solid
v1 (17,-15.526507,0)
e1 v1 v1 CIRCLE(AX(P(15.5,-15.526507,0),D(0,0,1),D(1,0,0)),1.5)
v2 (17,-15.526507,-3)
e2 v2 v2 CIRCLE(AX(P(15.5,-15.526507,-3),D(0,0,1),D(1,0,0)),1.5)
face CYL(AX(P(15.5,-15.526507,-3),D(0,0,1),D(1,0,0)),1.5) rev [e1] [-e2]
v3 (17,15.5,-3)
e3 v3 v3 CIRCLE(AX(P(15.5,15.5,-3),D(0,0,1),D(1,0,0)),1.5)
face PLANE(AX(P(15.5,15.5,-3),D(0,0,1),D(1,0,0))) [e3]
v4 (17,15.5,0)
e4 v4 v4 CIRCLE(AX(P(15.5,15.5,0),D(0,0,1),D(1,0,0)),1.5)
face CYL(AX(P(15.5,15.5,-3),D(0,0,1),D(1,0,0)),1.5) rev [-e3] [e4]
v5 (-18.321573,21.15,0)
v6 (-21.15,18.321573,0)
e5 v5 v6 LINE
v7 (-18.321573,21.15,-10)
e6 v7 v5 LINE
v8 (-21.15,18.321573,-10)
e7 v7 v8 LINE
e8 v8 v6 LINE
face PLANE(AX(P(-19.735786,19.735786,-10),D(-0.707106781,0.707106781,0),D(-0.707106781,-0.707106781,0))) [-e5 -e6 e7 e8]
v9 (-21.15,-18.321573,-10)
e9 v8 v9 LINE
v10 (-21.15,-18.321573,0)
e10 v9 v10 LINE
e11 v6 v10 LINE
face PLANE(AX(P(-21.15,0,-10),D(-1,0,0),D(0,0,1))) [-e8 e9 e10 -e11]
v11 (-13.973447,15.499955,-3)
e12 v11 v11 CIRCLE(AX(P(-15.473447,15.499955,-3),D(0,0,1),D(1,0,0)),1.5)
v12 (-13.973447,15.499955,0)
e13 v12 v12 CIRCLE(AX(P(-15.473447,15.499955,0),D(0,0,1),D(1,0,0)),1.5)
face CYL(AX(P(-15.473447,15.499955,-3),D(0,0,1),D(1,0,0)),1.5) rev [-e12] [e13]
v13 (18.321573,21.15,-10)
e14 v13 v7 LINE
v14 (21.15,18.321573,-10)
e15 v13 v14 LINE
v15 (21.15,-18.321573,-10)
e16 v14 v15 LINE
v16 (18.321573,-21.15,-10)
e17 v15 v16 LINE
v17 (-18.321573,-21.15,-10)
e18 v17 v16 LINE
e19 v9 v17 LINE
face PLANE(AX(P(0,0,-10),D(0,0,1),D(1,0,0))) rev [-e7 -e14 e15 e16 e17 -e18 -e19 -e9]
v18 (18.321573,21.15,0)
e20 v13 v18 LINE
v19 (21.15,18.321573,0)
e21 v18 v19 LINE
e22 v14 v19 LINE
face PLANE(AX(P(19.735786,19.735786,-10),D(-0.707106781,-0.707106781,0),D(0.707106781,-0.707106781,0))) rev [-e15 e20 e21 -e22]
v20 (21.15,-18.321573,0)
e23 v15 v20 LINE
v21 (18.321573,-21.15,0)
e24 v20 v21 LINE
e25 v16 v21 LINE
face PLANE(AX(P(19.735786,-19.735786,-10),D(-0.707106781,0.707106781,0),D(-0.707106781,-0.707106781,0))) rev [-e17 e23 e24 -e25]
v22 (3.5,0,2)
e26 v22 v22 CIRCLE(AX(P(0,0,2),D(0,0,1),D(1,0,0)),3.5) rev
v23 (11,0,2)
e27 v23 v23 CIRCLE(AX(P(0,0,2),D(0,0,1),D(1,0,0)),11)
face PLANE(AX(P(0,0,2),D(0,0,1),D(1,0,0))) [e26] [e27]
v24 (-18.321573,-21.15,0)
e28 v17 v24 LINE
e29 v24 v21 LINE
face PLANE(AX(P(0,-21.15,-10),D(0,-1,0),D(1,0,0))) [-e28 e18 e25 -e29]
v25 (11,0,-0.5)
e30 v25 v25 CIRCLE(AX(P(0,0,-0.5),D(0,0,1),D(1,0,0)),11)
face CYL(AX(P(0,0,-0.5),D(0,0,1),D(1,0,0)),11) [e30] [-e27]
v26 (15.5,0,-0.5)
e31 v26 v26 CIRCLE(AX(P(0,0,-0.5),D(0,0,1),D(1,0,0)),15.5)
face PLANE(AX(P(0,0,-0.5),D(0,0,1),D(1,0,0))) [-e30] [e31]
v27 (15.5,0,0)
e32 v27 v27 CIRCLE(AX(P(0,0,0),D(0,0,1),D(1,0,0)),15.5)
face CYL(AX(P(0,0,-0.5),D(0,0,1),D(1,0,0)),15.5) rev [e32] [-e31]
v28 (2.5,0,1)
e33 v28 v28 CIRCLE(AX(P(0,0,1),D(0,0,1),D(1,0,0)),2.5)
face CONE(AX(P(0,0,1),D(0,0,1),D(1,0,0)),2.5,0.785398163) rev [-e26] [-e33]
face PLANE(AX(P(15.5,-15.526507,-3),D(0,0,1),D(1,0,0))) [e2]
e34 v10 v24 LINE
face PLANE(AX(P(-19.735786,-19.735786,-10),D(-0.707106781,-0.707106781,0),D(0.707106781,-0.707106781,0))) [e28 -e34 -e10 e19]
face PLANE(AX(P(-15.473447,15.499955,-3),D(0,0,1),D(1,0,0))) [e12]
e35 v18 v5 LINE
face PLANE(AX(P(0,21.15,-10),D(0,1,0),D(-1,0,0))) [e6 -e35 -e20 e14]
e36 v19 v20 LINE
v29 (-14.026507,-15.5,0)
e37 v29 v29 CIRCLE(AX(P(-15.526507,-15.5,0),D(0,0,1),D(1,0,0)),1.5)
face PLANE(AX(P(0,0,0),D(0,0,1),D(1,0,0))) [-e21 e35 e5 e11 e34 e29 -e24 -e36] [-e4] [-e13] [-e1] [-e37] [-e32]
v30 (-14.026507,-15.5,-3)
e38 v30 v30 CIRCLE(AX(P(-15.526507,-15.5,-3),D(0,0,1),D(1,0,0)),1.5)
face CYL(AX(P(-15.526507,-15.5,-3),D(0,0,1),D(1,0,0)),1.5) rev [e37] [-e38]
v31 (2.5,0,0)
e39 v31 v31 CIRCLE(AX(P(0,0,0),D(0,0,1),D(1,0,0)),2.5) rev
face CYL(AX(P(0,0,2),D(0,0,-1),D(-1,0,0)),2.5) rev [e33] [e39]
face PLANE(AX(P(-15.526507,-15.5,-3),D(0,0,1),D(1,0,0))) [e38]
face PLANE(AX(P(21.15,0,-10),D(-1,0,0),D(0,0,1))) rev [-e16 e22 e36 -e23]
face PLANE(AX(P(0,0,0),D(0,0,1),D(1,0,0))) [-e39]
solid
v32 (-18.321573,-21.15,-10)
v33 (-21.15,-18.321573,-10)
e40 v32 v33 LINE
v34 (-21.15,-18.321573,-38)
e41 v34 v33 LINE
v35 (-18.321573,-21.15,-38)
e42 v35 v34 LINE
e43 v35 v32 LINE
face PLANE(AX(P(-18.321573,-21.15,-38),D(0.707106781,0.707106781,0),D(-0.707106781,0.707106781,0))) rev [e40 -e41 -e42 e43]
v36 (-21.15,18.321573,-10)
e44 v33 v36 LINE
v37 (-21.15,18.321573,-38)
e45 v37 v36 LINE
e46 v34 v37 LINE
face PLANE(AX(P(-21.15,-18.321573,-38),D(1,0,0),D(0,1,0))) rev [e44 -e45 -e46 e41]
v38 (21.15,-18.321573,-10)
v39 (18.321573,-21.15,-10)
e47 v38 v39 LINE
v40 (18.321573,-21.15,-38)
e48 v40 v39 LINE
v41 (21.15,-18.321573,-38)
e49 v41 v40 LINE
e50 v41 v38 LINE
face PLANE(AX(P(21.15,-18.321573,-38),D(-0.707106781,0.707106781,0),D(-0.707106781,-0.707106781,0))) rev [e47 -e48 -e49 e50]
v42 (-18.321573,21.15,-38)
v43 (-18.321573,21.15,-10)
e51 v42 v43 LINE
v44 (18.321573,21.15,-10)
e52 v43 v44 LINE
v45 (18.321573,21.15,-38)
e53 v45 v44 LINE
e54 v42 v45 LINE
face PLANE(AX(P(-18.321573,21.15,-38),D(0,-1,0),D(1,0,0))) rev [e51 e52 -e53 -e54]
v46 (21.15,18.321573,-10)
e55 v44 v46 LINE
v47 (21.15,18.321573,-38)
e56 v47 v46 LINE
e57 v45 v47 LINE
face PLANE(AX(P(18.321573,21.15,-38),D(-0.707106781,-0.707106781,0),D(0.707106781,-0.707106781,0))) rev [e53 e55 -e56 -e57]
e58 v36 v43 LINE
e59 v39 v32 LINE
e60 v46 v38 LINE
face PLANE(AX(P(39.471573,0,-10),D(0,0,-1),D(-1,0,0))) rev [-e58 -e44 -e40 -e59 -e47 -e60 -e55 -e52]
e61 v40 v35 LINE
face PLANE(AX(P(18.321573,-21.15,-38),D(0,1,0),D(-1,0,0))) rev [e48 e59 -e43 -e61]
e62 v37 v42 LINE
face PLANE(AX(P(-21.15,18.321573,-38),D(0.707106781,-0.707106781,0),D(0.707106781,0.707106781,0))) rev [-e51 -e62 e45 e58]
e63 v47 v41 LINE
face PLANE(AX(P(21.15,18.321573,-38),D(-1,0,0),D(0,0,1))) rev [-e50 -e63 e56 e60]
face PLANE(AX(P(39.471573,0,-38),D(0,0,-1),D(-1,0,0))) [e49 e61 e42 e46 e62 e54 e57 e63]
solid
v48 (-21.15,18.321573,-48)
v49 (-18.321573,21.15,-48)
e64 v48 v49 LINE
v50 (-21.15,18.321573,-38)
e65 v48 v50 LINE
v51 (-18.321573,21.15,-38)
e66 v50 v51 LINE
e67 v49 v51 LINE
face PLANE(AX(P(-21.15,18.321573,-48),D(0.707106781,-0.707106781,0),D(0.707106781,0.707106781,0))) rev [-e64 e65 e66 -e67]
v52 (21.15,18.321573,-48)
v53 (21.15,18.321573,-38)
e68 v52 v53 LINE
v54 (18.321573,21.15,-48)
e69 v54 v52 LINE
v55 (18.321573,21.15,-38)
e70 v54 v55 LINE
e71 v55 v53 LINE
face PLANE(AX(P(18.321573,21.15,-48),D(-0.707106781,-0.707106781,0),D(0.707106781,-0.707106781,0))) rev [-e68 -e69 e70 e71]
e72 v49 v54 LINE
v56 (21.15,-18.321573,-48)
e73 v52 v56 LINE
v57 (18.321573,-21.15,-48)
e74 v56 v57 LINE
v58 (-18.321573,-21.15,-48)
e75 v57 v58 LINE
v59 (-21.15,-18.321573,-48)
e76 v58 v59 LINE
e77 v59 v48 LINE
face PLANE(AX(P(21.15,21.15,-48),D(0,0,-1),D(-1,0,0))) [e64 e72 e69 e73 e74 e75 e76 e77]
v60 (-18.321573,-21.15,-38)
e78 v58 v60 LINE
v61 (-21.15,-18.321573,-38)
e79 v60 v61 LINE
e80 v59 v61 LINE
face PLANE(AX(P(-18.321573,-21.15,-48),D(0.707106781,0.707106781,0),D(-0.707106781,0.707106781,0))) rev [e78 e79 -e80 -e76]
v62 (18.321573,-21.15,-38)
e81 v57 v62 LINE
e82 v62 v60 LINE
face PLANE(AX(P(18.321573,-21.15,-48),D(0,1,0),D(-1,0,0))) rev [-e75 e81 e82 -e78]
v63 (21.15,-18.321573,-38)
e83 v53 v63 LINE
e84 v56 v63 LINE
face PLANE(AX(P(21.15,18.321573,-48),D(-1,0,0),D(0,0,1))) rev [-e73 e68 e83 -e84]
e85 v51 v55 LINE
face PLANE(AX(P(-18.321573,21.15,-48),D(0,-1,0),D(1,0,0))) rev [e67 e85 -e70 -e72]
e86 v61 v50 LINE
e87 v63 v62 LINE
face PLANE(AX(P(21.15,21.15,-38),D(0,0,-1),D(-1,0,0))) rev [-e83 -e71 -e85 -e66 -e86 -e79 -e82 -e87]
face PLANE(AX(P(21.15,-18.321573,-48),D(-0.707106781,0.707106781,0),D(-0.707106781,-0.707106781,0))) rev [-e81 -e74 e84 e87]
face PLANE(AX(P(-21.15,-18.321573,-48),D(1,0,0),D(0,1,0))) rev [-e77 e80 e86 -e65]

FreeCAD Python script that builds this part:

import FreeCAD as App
import Part
import Sketcher


def edges_at(feature, points):
    """Names of the edges that pass closest to the given points."""
    edges = feature.Shape.Edges
    near = lambda p: min(range(len(edges)), key=lambda i: edges[i].distToShape(Part.Vertex(*p))[0])
    return sorted({f"Edge{near(p) + 1}" for p in points})

doc = App.newDocument("Part")
body = doc.addObject("PartDesign::Body", "Body")

# Sketch on XY plane
sketch1 = body.newObject("Sketcher::SketchObject", "Sketch")
sketch1.AttachmentSupport = (doc.getObject("XY_Plane"), [""])
sketch1.MapMode = "FlatFace"
sketch1.addGeometry([
    Part.LineSegment(App.Vector(18.321573, 21.15, 0), App.Vector(-18.321573, 21.15, 0)),  # 0
    Part.LineSegment(App.Vector(-18.321573, 21.15, 0), App.Vector(-21.15, 18.321573, 0)),  # 1
    Part.LineSegment(App.Vector(-21.15, 18.321573, 0), App.Vector(-21.15, -18.321573, 0)),  # 2
    Part.LineSegment(App.Vector(-21.15, -18.321573, 0), App.Vector(-18.321573, -21.15, 0)),  # 3
    Part.LineSegment(App.Vector(-18.321573, -21.15, 0), App.Vector(18.321573, -21.15, 0)),  # 4
    Part.LineSegment(App.Vector(18.321573, -21.15, 0), App.Vector(21.15, -18.321573, 0)),  # 5
    Part.LineSegment(App.Vector(21.15, -18.321573, 0), App.Vector(21.15, 18.321573, 0)),  # 6
    Part.LineSegment(App.Vector(21.15, 18.321573, 0), App.Vector(18.321573, 21.15, 0)),  # 7
], False)
sketch1.addConstraint([
    Sketcher.Constraint("Coincident", 0, 2, 1, 1),
    Sketcher.Constraint("Coincident", 1, 2, 2, 1),
    Sketcher.Constraint("Coincident", 2, 2, 3, 1),
    Sketcher.Constraint("Coincident", 3, 2, 4, 1),
    Sketcher.Constraint("Coincident", 4, 2, 5, 1),
    Sketcher.Constraint("Coincident", 5, 2, 6, 1),
    Sketcher.Constraint("Coincident", 6, 2, 7, 1),
    Sketcher.Constraint("Coincident", 7, 2, 0, 1),
    Sketcher.Constraint("Horizontal", 0),
    Sketcher.Constraint("Vertical", 2),
    Sketcher.Constraint("Horizontal", 4),
    Sketcher.Constraint("Vertical", 6),
    Sketcher.Constraint("Symmetric", 0, 2, 4, 2, -1, 1),
    Sketcher.Constraint("Symmetric", 1, 2, 5, 2, -1, 1),
    Sketcher.Constraint("Perpendicular", 1, 3),
    Sketcher.Constraint("Perpendicular", 5, 7),
    Sketcher.Constraint("Horizontal", 2, 2, 5, 2),
    Sketcher.Constraint("Horizontal", 1, 2, 6, 2),
    Sketcher.Constraint("Vertical", 0, 2, 3, 2),
    Sketcher.Constraint("Equal", 4, 2),
    Sketcher.Constraint("Distance", 1, 4.0),
    Sketcher.Constraint("DistanceY", 3, 2, 0, 2, 42.3),
])
pad1 = body.newObject("PartDesign::Pad", "Pad")
pad1.Profile = sketch1
pad1.Length = 10
pad1.Reversed = True

# Sketch on XY plane
sketch2 = body.newObject("Sketcher::SketchObject", "Sketch001")
sketch2.AttachmentSupport = (doc.getObject("XY_Plane"), [""])
sketch2.MapMode = "FlatFace"
sketch2.addGeometry([
    Part.Circle(App.Vector(0, 0, 0), App.Vector(0, 0, 1), 15.5),
    Part.Circle(App.Vector(0, 0, 0), App.Vector(0, 0, 1), 11),
], False)
sketch2.addConstraint([
    Sketcher.Constraint("Coincident", 0, 3, -1, 1),
    Sketcher.Constraint("Coincident", 1, 3, -1, 1),
    Sketcher.Constraint("Diameter", 0, 31.0),
    Sketcher.Constraint("Diameter", 1, 22.0),
])
pocket1 = body.newObject("PartDesign::Pocket", "Pocket")
pocket1.Profile = sketch2
pocket1.Length = 0.5

# Sketch on XY plane
sketch3 = body.newObject("Sketcher::SketchObject", "Sketch002")
sketch3.AttachmentSupport = (doc.getObject("XY_Plane"), [""])
sketch3.MapMode = "FlatFace"
sketch3.AttachmentOffset = App.Placement(App.Vector(0, 0, 2), App.Rotation())
sketch3.addGeometry([
    Part.Circle(App.Vector(0, 0, 0), App.Vector(0, 0, 1), 11),
    Part.Circle(App.Vector(0, 0, 0), App.Vector(0, 0, 1), 2.5),
], False)
sketch3.addConstraint([
    Sketcher.Constraint("Coincident", 0, 3, -1, 1),
    Sketcher.Constraint("Coincident", 1, 3, -1, 1),
    Sketcher.Constraint("Diameter", 0, 22.0),
    Sketcher.Constraint("Diameter", 1, 5.0),
])
pad2 = body.newObject("PartDesign::Pad", "Pad001")
pad2.Profile = sketch3
pad2.Length = 2
pad2.Reversed = True
doc.recompute()

chamfer = body.newObject("PartDesign::Chamfer", "Chamfer")
chamfer.Base = (pad2, edges_at(pad2, [(-2.5, 0, 2)]))
chamfer.Size = 1

# Sketch on XY plane
sketch4 = body.newObject("Sketcher::SketchObject", "Sketch003")
sketch4.AttachmentSupport = (doc.getObject("XY_Plane"), [""])
sketch4.MapMode = "FlatFace"
sketch4.addGeometry([
    Part.Circle(App.Vector(-15.473447, 15.499955, 0), App.Vector(0, 0, 1), 1.5),
    Part.Circle(App.Vector(15.5, 15.5, 0), App.Vector(0, 0, 1), 1.5),
    Part.Circle(App.Vector(15.5, -15.526507, 0), App.Vector(0, 0, 1), 1.5),
    Part.Circle(App.Vector(-15.526507, -15.5, 0), App.Vector(0, 0, 1), 1.5),
], False)
sketch4.addConstraint([
    Sketcher.Constraint("Equal", 0, 1),
    Sketcher.Constraint("Equal", 1, 2),
    Sketcher.Constraint("Equal", 2, 3),
    Sketcher.Constraint("Vertical", 1, 3, 2, 3),
    Sketcher.Constraint("Diameter", 0, 3.0),
    Sketcher.Constraint("DistanceY", 3, 3, 1, 3, 31.0),
    Sketcher.Constraint("DistanceX", -1, 1, 1, 3, 15.5),
    Sketcher.Constraint("DistanceY", -1, 1, 1, 3, 15.5),
    Sketcher.Constraint("DistanceY", 2, 3, 0, 3, 31.026462),
    Sketcher.Constraint("DistanceX", 3, 3, 0, 3, 0.05306),
    Sketcher.Constraint("DistanceX", 0, 3, -1, 1, 15.473447),
    Sketcher.Constraint("DistanceY", -1, 1, 0, 3, 15.499955),
])
pocket2 = body.newObject("PartDesign::Pocket", "Pocket001")
pocket2.Profile = sketch4
pocket2.Length = 3
body2 = doc.addObject("PartDesign::Body", "Body001")

# Sketch on XY plane
sketch5 = body2.newObject("Sketcher::SketchObject", "Sketch004")
sketch5.AttachmentSupport = (doc.getObject("XY_Plane001"), [""])
sketch5.MapMode = "FlatFace"
sketch5.AttachmentOffset = App.Placement(App.Vector(0, 0, -10), App.Rotation())
sketch5.addGeometry([
    Part.LineSegment(App.Vector(21.15, 18.321573, 0), App.Vector(21.15, -18.321573, 0)),  # 0
    Part.LineSegment(App.Vector(21.15, -18.321573, 0), App.Vector(18.321573, -21.15, 0)),  # 1
    Part.LineSegment(App.Vector(18.321573, -21.15, 0), App.Vector(-18.321573, -21.15, 0)),  # 2
    Part.LineSegment(App.Vector(-18.321573, -21.15, 0), App.Vector(-21.15, -18.321573, 0)),  # 3
    Part.LineSegment(App.Vector(-21.15, -18.321573, 0), App.Vector(-21.15, 18.321573, 0)),  # 4
    Part.LineSegment(App.Vector(-21.15, 18.321573, 0), App.Vector(-18.321573, 21.15, 0)),  # 5
    Part.LineSegment(App.Vector(-18.321573, 21.15, 0), App.Vector(18.321573, 21.15, 0)),  # 6
    Part.LineSegment(App.Vector(18.321573, 21.15, 0), App.Vector(21.15, 18.321573, 0)),  # 7
], False)
sketch5.addConstraint([
    Sketcher.Constraint("Coincident", 0, 2, 1, 1),
    Sketcher.Constraint("Coincident", 1, 2, 2, 1),
    Sketcher.Constraint("Coincident", 2, 2, 3, 1),
    Sketcher.Constraint("Coincident", 3, 2, 4, 1),
    Sketcher.Constraint("Coincident", 4, 2, 5, 1),
    Sketcher.Constraint("Coincident", 5, 2, 6, 1),
    Sketcher.Constraint("Coincident", 6, 2, 7, 1),
    Sketcher.Constraint("Coincident", 7, 2, 0, 1),
    Sketcher.Constraint("Vertical", 0),
    Sketcher.Constraint("Horizontal", 2),
    Sketcher.Constraint("Vertical", 4),
    Sketcher.Constraint("Horizontal", 6),
    Sketcher.Constraint("Symmetric", 0, 2, 4, 2, -1, 1),
    Sketcher.Constraint("Symmetric", 1, 2, 5, 2, -1, 1),
    Sketcher.Constraint("Perpendicular", 1, 3),
    Sketcher.Constraint("Perpendicular", 5, 7),
    Sketcher.Constraint("Horizontal", 0, 2, 3, 2),
    Sketcher.Constraint("Horizontal", 4, 2, 7, 2),
    Sketcher.Constraint("Vertical", 2, 2, 5, 2),
    Sketcher.Constraint("Equal", 6, 0),
    Sketcher.Constraint("Distance", 1, 4.0),
    Sketcher.Constraint("DistanceX", 3, 2, 0, 2, 42.3),
])
pad3 = body2.newObject("PartDesign::Pad", "Pad002")
pad3.Profile = sketch5
pad3.Length = 28
pad3.Reversed = True
body3 = doc.addObject("PartDesign::Body", "Body002")

# Sketch on XY plane
sketch6 = body3.newObject("Sketcher::SketchObject", "Sketch005")
sketch6.AttachmentSupport = (doc.getObject("XY_Plane002"), [""])
sketch6.MapMode = "FlatFace"
sketch6.AttachmentOffset = App.Placement(App.Vector(0, 0, -38), App.Rotation())
sketch6.addGeometry([
    Part.LineSegment(App.Vector(18.321573, 21.15, 0), App.Vector(21.15, 18.321573, 0)),  # 0
    Part.LineSegment(App.Vector(21.15, 18.321573, 0), App.Vector(21.15, -18.321573, 0)),  # 1
    Part.LineSegment(App.Vector(21.15, -18.321573, 0), App.Vector(18.321573, -21.15, 0)),  # 2
    Part.LineSegment(App.Vector(18.321573, -21.15, 0), App.Vector(-18.321573, -21.15, 0)),  # 3
    Part.LineSegment(App.Vector(-18.321573, -21.15, 0), App.Vector(-21.15, -18.321573, 0)),  # 4
    Part.LineSegment(App.Vector(-21.15, -18.321573, 0), App.Vector(-21.15, 18.321573, 0)),  # 5
    Part.LineSegment(App.Vector(-21.15, 18.321573, 0), App.Vector(-18.321573, 21.15, 0)),  # 6
    Part.LineSegment(App.Vector(-18.321573, 21.15, 0), App.Vector(18.321573, 21.15, 0)),  # 7
], False)
sketch6.addConstraint([
    Sketcher.Constraint("Coincident", 0, 2, 1, 1),
    Sketcher.Constraint("Coincident", 1, 2, 2, 1),
    Sketcher.Constraint("Coincident", 2, 2, 3, 1),
    Sketcher.Constraint("Coincident", 3, 2, 4, 1),
    Sketcher.Constraint("Coincident", 4, 2, 5, 1),
    Sketcher.Constraint("Coincident", 5, 2, 6, 1),
    Sketcher.Constraint("Coincident", 6, 2, 7, 1),
    Sketcher.Constraint("Coincident", 7, 2, 0, 1),
    Sketcher.Constraint("Vertical", 1),
    Sketcher.Constraint("Horizontal", 3),
    Sketcher.Constraint("Vertical", 5),
    Sketcher.Constraint("Horizontal", 7),
    Sketcher.Constraint("Symmetric", 0, 2, 4, 2, -1, 1),
    Sketcher.Constraint("Symmetric", 2, 2, 6, 2, -1, 1),
    Sketcher.Constraint("Perpendicular", 0, 2),
    Sketcher.Constraint("Perpendicular", 2, 4),
    Sketcher.Constraint("Perpendicular", 4, 6),
    Sketcher.Constraint("Horizontal", 1, 2, 4, 2),
    Sketcher.Constraint("Vertical", 3, 2, 6, 2),
    Sketcher.Constraint("Equal", 7, 1),
    Sketcher.Constraint("Distance", 0, 4.0),
    Sketcher.Constraint("DistanceX", 4, 2, 1, 2, 42.3),
])
pad4 = body3.newObject("PartDesign::Pad", "Pad003")
pad4.Profile = sketch6
pad4.Length = 10
pad4.Reversed = True

doc.recompute()
